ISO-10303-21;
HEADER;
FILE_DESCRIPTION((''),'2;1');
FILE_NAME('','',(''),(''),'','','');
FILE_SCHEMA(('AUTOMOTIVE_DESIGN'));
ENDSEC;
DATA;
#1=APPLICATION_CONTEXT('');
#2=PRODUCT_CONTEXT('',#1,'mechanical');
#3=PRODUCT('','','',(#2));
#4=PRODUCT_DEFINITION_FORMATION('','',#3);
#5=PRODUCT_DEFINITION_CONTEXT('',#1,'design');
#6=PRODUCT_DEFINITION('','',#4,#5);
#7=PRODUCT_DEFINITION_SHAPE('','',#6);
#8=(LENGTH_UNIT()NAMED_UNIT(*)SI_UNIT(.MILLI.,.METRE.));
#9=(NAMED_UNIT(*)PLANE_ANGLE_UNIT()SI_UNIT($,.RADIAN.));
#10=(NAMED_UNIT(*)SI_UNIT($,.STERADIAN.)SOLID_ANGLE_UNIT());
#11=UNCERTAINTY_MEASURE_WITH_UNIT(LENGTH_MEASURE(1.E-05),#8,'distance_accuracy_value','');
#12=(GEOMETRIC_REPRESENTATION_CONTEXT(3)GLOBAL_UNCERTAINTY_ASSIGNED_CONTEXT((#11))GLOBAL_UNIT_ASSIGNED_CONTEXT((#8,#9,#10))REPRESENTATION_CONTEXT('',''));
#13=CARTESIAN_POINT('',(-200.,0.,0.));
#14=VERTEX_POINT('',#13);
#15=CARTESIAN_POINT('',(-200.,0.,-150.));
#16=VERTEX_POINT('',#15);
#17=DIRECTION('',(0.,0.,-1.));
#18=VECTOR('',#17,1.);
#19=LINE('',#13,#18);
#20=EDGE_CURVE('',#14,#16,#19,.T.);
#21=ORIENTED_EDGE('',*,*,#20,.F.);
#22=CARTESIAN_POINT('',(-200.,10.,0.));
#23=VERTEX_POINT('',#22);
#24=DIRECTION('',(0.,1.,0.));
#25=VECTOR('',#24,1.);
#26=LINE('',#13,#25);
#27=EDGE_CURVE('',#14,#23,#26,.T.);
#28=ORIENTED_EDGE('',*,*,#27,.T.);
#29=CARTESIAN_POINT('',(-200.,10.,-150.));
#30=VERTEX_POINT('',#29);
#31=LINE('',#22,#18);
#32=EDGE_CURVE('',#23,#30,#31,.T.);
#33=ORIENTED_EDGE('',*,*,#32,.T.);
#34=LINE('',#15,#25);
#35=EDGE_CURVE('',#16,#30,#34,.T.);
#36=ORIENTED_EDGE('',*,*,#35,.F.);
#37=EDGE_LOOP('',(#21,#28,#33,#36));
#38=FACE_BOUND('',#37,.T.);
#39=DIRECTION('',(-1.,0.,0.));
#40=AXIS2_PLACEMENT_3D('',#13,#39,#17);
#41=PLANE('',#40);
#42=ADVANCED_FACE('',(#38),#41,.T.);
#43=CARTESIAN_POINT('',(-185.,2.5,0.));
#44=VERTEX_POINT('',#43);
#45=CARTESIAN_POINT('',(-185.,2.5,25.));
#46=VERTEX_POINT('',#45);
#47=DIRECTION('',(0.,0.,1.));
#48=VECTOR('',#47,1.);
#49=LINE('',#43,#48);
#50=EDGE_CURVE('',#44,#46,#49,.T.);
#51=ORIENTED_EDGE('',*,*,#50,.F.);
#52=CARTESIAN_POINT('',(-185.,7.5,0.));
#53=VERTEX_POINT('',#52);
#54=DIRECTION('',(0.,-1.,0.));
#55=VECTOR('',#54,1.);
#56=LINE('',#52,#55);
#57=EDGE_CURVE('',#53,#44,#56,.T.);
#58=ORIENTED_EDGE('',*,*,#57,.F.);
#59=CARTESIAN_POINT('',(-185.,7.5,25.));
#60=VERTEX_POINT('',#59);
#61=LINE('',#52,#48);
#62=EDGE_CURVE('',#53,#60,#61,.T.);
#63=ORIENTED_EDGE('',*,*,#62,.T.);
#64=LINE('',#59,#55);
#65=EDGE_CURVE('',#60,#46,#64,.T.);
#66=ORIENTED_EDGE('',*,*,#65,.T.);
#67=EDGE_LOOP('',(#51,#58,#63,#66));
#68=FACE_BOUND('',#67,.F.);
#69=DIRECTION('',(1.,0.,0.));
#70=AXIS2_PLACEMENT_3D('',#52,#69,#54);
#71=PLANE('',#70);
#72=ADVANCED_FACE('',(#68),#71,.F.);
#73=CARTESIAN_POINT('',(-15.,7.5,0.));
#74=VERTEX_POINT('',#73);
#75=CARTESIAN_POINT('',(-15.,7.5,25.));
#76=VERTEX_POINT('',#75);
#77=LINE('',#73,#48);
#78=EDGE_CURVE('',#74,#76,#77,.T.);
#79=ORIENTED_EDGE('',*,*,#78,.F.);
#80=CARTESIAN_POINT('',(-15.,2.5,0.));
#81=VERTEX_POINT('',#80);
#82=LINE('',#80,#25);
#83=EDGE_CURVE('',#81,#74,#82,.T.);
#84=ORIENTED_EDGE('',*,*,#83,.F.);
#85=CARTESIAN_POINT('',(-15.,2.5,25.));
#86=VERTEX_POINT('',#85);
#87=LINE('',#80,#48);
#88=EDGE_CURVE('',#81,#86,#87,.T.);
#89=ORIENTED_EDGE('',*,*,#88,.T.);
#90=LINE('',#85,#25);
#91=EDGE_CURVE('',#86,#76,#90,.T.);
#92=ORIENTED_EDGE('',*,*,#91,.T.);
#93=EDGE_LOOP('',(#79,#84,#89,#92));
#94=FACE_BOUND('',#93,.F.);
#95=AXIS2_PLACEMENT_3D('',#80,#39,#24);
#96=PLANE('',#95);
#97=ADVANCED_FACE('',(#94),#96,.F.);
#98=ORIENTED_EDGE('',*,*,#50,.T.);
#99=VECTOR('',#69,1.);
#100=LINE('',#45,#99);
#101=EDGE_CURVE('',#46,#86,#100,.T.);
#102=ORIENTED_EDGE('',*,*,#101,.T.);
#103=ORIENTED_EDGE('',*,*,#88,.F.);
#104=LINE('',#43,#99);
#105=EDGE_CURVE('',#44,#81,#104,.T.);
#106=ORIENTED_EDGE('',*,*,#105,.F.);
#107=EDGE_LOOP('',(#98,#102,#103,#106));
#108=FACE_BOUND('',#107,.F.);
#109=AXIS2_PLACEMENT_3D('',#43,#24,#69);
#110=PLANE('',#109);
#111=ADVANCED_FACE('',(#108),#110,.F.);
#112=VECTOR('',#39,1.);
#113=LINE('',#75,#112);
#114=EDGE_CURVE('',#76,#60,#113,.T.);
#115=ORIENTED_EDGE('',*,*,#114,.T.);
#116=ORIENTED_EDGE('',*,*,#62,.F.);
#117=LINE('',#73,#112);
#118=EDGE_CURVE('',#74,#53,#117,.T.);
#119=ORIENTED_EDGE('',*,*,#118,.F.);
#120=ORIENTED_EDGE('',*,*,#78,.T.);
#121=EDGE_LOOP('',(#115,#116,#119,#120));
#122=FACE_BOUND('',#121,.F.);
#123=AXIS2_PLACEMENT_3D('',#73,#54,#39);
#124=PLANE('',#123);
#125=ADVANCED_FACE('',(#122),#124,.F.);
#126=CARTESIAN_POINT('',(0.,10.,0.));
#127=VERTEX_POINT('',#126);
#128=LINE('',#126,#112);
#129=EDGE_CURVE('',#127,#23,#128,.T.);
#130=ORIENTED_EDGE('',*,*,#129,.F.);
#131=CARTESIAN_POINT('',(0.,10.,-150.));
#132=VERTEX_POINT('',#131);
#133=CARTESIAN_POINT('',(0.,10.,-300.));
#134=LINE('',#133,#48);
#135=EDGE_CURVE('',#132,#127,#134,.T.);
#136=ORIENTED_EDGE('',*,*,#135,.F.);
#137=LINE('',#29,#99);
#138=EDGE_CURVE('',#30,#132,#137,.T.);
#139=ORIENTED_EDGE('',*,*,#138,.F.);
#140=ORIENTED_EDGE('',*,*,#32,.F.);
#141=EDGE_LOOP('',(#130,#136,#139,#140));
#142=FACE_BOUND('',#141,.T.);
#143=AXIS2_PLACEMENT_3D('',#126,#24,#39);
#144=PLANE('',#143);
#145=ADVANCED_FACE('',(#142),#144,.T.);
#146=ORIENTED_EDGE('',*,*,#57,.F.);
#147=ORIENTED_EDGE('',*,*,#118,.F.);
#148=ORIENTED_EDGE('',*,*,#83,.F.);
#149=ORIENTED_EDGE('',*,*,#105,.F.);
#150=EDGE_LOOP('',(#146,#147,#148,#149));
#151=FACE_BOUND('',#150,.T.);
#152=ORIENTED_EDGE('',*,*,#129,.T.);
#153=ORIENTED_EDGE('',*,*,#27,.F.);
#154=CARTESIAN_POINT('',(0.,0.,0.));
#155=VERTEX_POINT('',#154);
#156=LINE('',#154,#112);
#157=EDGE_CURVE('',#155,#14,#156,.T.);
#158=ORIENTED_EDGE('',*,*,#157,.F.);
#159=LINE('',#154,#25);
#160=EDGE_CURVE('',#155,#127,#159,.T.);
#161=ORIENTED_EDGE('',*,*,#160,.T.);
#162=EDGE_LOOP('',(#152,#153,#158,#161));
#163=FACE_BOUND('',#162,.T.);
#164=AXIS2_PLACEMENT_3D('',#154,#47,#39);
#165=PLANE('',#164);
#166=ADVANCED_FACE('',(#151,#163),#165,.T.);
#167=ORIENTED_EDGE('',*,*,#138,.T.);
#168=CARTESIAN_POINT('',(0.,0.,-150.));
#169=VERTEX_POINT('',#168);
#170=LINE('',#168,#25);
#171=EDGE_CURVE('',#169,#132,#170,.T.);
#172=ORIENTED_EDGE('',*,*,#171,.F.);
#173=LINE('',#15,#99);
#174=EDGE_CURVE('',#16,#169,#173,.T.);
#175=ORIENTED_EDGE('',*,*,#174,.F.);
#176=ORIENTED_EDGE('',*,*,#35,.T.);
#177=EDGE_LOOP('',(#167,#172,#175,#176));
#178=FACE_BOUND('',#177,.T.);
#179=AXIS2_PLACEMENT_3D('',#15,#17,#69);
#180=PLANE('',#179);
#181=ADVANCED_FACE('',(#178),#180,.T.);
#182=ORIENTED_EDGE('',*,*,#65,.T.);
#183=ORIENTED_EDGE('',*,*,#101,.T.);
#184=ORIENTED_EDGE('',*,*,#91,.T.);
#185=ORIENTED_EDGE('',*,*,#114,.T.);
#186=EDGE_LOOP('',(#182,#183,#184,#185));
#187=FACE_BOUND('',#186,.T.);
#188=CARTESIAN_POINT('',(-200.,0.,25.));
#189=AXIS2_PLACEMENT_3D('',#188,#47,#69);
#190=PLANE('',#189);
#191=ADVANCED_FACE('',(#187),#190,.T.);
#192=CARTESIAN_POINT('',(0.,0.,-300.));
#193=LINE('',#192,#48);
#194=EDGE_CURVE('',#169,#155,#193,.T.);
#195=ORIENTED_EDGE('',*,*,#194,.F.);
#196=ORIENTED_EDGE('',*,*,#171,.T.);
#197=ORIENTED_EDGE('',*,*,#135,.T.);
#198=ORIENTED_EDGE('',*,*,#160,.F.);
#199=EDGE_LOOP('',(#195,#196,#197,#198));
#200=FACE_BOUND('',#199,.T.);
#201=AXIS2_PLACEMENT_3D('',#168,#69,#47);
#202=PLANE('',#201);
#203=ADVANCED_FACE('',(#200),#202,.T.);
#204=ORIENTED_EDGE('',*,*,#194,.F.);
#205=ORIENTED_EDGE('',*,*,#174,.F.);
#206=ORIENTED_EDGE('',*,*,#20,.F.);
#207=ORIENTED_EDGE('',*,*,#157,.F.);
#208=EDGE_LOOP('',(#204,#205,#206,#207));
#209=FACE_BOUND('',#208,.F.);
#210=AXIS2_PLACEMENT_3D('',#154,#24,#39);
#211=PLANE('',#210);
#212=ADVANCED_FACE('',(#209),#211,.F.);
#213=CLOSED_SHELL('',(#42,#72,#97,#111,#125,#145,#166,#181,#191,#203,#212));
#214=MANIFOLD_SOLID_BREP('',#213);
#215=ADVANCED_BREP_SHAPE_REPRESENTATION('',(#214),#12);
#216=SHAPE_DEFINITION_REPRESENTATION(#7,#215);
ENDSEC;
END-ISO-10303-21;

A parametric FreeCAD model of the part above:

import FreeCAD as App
import Part
import Sketcher
from FreeCAD import Vector

doc = App.newDocument("Part")
body = doc.addObject("PartDesign::Body", "Body")

# Sketch on XZ plane
sketch1 = body.newObject("Sketcher::SketchObject", "Sketch")
sketch1.AttachmentSupport = (doc.getObject("XZ_Plane"), [""])
sketch1.MapMode = "FlatFace"
sketch1.addGeometry([
    Part.LineSegment(Vector(-200, 0, 0), Vector(0, 0, 0)),
    Part.LineSegment(Vector(0, 0, 0), Vector(0, -150, 0)),
    Part.LineSegment(Vector(0, -150, 0), Vector(-200, -150, 0)),
    Part.LineSegment(Vector(-200, -150, 0), Vector(-200, 0, 0)),
], False)
sketch1.addConstraint([
    Sketcher.Constraint("Coincident", 0, 2, 1, 1),
    Sketcher.Constraint("Coincident", 1, 2, 2, 1),
    Sketcher.Constraint("Coincident", 2, 2, 3, 1),
    Sketcher.Constraint("Coincident", 3, 2, 0, 1),
    Sketcher.Constraint("Horizontal", 0),
    Sketcher.Constraint("Vertical", 1),
    Sketcher.Constraint("Horizontal", 2),
    Sketcher.Constraint("Vertical", 3),
    Sketcher.Constraint("Coincident", 0, 2, -1, 1),
    Sketcher.Constraint("DistanceX", 0, 1, 0, 2, 200.0),
    Sketcher.Constraint("DistanceY", 1, 2, 1, 1, 150.0),
])
pad1 = body.newObject("PartDesign::Pad", "Pad")
pad1.Profile = sketch1
pad1.Length = 10
pad1.Reversed = True

# Sketch on XY plane
sketch2 = body.newObject("Sketcher::SketchObject", "Sketch001")
sketch2.AttachmentSupport = (doc.getObject("XY_Plane"), [""])
sketch2.MapMode = "FlatFace"
sketch2.addGeometry([
    Part.LineSegment(Vector(-185, 8, 0), Vector(-185, 2, 0)),
    Part.LineSegment(Vector(-185, 2, 0), Vector(-15, 2, 0)),
    Part.LineSegment(Vector(-15, 2, 0), Vector(-15, 8, 0)),
    Part.LineSegment(Vector(-15, 8, 0), Vector(-185, 8, 0)),
], False)
sketch2.addConstraint([
    Sketcher.Constraint("Coincident", 0, 2, 1, 1),
    Sketcher.Constraint("Coincident", 1, 2, 2, 1),
    Sketcher.Constraint("Coincident", 2, 2, 3, 1),
    Sketcher.Constraint("Coincident", 3, 2, 0, 1),
    Sketcher.Constraint("Vertical", 0),
    Sketcher.Constraint("Horizontal", 1),
    Sketcher.Constraint("Vertical", 2),
    Sketcher.Constraint("Horizontal", 3),
    Sketcher.Constraint("DistanceX", 1, 1, 1, 2, 170.0),
    Sketcher.Constraint("DistanceY", 0, 2, 0, 1, 5.0),
    Sketcher.Constraint("DistanceX", 0, 2, -1, 1, 185.0),
    Sketcher.Constraint("DistanceY", -1, 1, 0, 2, 2.5),
])
pad2 = body.newObject("PartDesign::Pad", "Pad001")
pad2.Profile = sketch2
pad2.Length = 25

doc.recompute()
